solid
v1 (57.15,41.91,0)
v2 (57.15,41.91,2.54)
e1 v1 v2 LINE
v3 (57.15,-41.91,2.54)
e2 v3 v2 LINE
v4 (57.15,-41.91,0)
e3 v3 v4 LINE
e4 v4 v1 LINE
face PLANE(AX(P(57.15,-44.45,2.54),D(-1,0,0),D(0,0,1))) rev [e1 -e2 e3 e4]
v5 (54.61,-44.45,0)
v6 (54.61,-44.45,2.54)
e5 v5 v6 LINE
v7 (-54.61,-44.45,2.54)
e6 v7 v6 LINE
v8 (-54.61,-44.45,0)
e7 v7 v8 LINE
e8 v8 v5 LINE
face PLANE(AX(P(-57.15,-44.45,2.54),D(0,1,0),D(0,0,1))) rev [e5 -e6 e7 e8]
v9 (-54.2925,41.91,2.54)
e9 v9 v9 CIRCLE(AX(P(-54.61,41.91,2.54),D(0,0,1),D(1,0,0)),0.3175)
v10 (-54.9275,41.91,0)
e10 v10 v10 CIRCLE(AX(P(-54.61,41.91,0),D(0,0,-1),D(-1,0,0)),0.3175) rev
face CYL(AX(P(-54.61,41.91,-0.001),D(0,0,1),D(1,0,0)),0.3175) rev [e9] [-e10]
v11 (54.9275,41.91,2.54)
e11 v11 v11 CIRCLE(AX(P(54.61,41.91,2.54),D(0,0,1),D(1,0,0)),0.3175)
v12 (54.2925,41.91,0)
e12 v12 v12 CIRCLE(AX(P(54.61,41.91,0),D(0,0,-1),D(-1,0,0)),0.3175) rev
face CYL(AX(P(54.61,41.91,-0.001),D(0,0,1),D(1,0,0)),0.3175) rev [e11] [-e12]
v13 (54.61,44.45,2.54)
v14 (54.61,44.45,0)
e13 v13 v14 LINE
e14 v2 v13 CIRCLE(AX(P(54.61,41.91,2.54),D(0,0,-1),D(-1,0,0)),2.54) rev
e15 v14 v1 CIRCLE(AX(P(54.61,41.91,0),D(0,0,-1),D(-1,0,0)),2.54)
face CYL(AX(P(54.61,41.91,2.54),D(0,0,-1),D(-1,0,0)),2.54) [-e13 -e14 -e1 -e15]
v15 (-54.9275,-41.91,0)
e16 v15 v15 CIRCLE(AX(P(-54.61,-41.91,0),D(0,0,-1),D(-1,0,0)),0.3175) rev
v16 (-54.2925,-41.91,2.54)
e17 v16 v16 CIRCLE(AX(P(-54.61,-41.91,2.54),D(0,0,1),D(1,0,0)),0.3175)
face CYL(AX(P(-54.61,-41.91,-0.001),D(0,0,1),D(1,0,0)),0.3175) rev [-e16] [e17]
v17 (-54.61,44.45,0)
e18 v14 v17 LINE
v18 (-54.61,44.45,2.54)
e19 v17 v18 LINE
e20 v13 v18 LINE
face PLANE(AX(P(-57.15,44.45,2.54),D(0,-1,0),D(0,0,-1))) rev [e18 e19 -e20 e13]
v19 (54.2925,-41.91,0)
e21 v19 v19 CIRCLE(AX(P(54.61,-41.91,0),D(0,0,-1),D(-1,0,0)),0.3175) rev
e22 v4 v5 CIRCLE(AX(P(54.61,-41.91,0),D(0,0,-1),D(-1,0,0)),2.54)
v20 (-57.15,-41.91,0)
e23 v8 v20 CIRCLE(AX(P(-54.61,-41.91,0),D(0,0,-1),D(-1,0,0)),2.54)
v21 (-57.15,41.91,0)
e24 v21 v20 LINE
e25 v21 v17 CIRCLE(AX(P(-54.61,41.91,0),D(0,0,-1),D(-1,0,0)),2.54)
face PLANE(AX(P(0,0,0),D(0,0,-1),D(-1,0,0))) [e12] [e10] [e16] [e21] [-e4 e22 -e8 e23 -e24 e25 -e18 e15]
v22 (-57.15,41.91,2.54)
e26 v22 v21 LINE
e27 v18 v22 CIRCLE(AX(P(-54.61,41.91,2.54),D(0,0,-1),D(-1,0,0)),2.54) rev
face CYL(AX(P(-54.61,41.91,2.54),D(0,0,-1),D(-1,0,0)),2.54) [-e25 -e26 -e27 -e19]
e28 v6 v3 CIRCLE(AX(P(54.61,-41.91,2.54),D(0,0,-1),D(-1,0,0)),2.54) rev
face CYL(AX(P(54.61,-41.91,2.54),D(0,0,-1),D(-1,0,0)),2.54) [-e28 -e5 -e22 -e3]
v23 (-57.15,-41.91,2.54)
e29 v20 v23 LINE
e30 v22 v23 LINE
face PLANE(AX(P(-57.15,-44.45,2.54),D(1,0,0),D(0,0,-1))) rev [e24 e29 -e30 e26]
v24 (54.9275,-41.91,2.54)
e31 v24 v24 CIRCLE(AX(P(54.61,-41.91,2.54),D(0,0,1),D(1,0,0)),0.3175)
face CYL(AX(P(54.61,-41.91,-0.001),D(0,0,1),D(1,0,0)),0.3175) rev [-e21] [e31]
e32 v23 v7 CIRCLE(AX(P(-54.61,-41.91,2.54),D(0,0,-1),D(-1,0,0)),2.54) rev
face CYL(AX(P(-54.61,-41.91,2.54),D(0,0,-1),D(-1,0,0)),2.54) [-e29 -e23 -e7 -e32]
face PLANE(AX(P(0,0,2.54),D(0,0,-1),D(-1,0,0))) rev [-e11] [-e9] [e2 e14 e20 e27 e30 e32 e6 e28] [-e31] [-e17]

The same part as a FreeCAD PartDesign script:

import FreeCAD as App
import Part
import Sketcher
from FreeCAD import Vector
Q = App.Units.Quantity


def edges_at(feature, points):
    """Names of the edges that pass closest to the given points."""
    edges = feature.Shape.Edges
    near = lambda p: min(range(len(edges)), key=lambda i: edges[i].distToShape(Part.Vertex(*p))[0])
    return sorted({f"Edge{near(p) + 1}" for p in points})

doc = App.newDocument("Part")
body = doc.addObject("PartDesign::Body", "Body")

sketch1 = body.newObject("Sketcher::SketchObject", "Sketch")
sketch1.AttachmentSupport = (doc.getObject("XY_Plane"), [""])
sketch1.MapMode = "FlatFace"
sketch1.addGeometry(Part.LineSegment(Vector(-57, 44, 0), Vector(-57, -44, 0)), False)
sketch1.addGeometry(Part.LineSegment(Vector(-57, -44, 0), Vector(57, -44, 0)), False)
sketch1.addGeometry(Part.LineSegment(Vector(57, -44, 0), Vector(57, 44, 0)), False)
sketch1.addGeometry(Part.LineSegment(Vector(57, 44, 0), Vector(-57, 44, 0)), False)
sketch1.addConstraint(Sketcher.Constraint("Coincident", 0, 2, 1, 1))
sketch1.addConstraint(Sketcher.Constraint("Coincident", 1, 2, 2, 1))
sketch1.addConstraint(Sketcher.Constraint("Coincident", 2, 2, 3, 1))
sketch1.addConstraint(Sketcher.Constraint("Coincident", 3, 2, 0, 1))
sketch1.addConstraint(Sketcher.Constraint("Vertical", 0))
sketch1.addConstraint(Sketcher.Constraint("Horizontal", 1))
sketch1.addConstraint(Sketcher.Constraint("Vertical", 2))
sketch1.addConstraint(Sketcher.Constraint("Horizontal", 3))
sketch1.addConstraint(Sketcher.Constraint("Symmetric", 0, 2, 2, 2, -1, 1))
sketch1.addConstraint(Sketcher.Constraint("DistanceX", 1, 1, 1, 2, Q("4.5 in")))
sketch1.addConstraint(Sketcher.Constraint("DistanceY", 0, 2, 0, 1, Q("3.5 in")))
pad1 = body.newObject("PartDesign::Pad", "Pad")
pad1.Profile = sketch1
pad1.Length = Q("0.1 in")
doc.recompute()

fillet = body.newObject("PartDesign::Fillet", "Fillet")
fillet.Base = (pad1, edges_at(pad1, [
    (57.15, -44.45, 1.27),
    (-57.15, -44.45, 1.27),
    (-57.15, 44.45, 1.27),
    (57.15, 44.45, 1.27),
]))
fillet.Radius = Q("0.1 in")

sketch2 = body.newObject("Sketcher::SketchObject", "Sketch001")
sketch2.AttachmentSupport = (doc.getObject("XY_Plane"), [""])
sketch2.MapMode = "FlatFace"
sketch2.AttachmentOffset = App.Placement(Vector(0, 0, 0.1 * 25.4), App.Rotation())
sketch2.addGeometry(Part.Circle(Vector(-54.61, 41.91, 0), Vector(0, 0, 1), 0.32), False)
sketch2.addConstraint(Sketcher.Constraint("Diameter", 0, Q("0.025 in")))
sketch2.addConstraint(Sketcher.Constraint("DistanceX", 0, 3, -1, 1, Q("2.15 in")))
sketch2.addConstraint(Sketcher.Constraint("DistanceY", -1, 1, 0, 3, Q("1.65 in")))
pocket1 = body.newObject("PartDesign::Pocket", "Pocket")
pocket1.Profile = sketch2
pocket1.Type = "UpToFirst"

sketch3 = body.newObject("Sketcher::SketchObject", "Sketch002")
sketch3.AttachmentSupport = (doc.getObject("XY_Plane"), [""])
sketch3.MapMode = "FlatFace"
sketch3.AttachmentOffset = App.Placement(Vector(0, 0, 0.1 * 25.4), App.Rotation())
sketch3.addGeometry(Part.Circle(Vector(54.61, 41.91, 0), Vector(0, 0, 1), 0.32), False)
sketch3.addConstraint(Sketcher.Constraint("Diameter", 0, Q("0.025 in")))
sketch3.addConstraint(Sketcher.Constraint("DistanceX", -1, 1, 0, 3, Q("2.15 in")))
sketch3.addConstraint(Sketcher.Constraint("DistanceY", -1, 1, 0, 3, Q("1.65 in")))
pocket2 = body.newObject("PartDesign::Pocket", "Pocket001")
pocket2.Profile = sketch3
pocket2.Type = "UpToFirst"

sketch4 = body.newObject("Sketcher::SketchObject", "Sketch003")
sketch4.AttachmentSupport = (doc.getObject("XY_Plane"), [""])
sketch4.MapMode = "FlatFace"
sketch4.AttachmentOffset = App.Placement(Vector(0, 0, 0.1 * 25.4), App.Rotation())
sketch4.addGeometry(Part.Circle(Vector(54.61, -41.91, 0), Vector(0, 0, 1), 0.32), False)
sketch4.addConstraint(Sketcher.Constraint("Diameter", 0, Q("0.025 in")))
sketch4.addConstraint(Sketcher.Constraint("DistanceX", -1, 1, 0, 3, Q("2.15 in")))
sketch4.addConstraint(Sketcher.Constraint("DistanceY", 0, 3, -1, 1, Q("1.65 in")))
pocket3 = body.newObject("PartDesign::Pocket", "Pocket002")
pocket3.Profile = sketch4
pocket3.Type = "UpToFirst"

sketch5 = body.newObject("Sketcher::SketchObject", "Sketch004")
sketch5.AttachmentSupport = (doc.getObject("XY_Plane"), [""])
sketch5.MapMode = "FlatFace"
sketch5.AttachmentOffset = App.Placement(Vector(0, 0, 0.1 * 25.4), App.Rotation())
sketch5.addGeometry(Part.Circle(Vector(-54.61, -41.91, 0), Vector(0, 0, 1), 0.32), False)
sketch5.addConstraint(Sketcher.Constraint("Diameter", 0, Q("0.025 in")))
sketch5.addConstraint(Sketcher.Constraint("DistanceX", 0, 3, -1, 1, Q("2.15 in")))
sketch5.addConstraint(Sketcher.Constraint("DistanceY", 0, 3, -1, 1, Q("1.65 in")))
pocket4 = body.newObject("PartDesign::Pocket", "Pocket003")
pocket4.Profile = sketch5
pocket4.Type = "UpToFirst"

doc.recompute()
